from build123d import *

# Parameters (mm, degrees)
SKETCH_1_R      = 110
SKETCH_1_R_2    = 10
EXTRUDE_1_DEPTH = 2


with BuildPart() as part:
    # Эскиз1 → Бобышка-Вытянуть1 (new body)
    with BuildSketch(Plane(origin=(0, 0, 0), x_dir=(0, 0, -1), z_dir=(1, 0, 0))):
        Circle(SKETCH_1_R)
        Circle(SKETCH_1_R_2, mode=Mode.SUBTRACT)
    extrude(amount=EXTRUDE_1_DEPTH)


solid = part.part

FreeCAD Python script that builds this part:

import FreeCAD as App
import Part
import Sketcher

V = App.Vector
Q = App.Units.Quantity

doc = App.newDocument("Part")
body = doc.addObject("PartDesign::Body", "Body")

# Sketch on YZ plane
sketch1 = body.newObject("Sketcher::SketchObject", "Sketch")
sketch1.AttachmentSupport = (doc.getObject("YZ_Plane"), [""])
sketch1.MapMode = "FlatFace"
sketch1.addGeometry([
    Part.Circle(V(0, 0, 0), V(0, 0, 1), 110),
    Part.Circle(V(0, 0, 0), V(0, 0, 1), 10),
], False)
sketch1.addConstraint([
    Sketcher.Constraint("Coincident", 0, 3, -1, 1),
    Sketcher.Constraint("Coincident", 1, 3, -1, 1),
    Sketcher.Constraint("Diameter", 0, Q("220 mm")),
    Sketcher.Constraint("Diameter", 1, Q("20 mm")),
])
pad1 = body.newObject("PartDesign::Pad", "Pad")
pad1.Profile = sketch1
pad1.Length = 2

doc.recompute()
